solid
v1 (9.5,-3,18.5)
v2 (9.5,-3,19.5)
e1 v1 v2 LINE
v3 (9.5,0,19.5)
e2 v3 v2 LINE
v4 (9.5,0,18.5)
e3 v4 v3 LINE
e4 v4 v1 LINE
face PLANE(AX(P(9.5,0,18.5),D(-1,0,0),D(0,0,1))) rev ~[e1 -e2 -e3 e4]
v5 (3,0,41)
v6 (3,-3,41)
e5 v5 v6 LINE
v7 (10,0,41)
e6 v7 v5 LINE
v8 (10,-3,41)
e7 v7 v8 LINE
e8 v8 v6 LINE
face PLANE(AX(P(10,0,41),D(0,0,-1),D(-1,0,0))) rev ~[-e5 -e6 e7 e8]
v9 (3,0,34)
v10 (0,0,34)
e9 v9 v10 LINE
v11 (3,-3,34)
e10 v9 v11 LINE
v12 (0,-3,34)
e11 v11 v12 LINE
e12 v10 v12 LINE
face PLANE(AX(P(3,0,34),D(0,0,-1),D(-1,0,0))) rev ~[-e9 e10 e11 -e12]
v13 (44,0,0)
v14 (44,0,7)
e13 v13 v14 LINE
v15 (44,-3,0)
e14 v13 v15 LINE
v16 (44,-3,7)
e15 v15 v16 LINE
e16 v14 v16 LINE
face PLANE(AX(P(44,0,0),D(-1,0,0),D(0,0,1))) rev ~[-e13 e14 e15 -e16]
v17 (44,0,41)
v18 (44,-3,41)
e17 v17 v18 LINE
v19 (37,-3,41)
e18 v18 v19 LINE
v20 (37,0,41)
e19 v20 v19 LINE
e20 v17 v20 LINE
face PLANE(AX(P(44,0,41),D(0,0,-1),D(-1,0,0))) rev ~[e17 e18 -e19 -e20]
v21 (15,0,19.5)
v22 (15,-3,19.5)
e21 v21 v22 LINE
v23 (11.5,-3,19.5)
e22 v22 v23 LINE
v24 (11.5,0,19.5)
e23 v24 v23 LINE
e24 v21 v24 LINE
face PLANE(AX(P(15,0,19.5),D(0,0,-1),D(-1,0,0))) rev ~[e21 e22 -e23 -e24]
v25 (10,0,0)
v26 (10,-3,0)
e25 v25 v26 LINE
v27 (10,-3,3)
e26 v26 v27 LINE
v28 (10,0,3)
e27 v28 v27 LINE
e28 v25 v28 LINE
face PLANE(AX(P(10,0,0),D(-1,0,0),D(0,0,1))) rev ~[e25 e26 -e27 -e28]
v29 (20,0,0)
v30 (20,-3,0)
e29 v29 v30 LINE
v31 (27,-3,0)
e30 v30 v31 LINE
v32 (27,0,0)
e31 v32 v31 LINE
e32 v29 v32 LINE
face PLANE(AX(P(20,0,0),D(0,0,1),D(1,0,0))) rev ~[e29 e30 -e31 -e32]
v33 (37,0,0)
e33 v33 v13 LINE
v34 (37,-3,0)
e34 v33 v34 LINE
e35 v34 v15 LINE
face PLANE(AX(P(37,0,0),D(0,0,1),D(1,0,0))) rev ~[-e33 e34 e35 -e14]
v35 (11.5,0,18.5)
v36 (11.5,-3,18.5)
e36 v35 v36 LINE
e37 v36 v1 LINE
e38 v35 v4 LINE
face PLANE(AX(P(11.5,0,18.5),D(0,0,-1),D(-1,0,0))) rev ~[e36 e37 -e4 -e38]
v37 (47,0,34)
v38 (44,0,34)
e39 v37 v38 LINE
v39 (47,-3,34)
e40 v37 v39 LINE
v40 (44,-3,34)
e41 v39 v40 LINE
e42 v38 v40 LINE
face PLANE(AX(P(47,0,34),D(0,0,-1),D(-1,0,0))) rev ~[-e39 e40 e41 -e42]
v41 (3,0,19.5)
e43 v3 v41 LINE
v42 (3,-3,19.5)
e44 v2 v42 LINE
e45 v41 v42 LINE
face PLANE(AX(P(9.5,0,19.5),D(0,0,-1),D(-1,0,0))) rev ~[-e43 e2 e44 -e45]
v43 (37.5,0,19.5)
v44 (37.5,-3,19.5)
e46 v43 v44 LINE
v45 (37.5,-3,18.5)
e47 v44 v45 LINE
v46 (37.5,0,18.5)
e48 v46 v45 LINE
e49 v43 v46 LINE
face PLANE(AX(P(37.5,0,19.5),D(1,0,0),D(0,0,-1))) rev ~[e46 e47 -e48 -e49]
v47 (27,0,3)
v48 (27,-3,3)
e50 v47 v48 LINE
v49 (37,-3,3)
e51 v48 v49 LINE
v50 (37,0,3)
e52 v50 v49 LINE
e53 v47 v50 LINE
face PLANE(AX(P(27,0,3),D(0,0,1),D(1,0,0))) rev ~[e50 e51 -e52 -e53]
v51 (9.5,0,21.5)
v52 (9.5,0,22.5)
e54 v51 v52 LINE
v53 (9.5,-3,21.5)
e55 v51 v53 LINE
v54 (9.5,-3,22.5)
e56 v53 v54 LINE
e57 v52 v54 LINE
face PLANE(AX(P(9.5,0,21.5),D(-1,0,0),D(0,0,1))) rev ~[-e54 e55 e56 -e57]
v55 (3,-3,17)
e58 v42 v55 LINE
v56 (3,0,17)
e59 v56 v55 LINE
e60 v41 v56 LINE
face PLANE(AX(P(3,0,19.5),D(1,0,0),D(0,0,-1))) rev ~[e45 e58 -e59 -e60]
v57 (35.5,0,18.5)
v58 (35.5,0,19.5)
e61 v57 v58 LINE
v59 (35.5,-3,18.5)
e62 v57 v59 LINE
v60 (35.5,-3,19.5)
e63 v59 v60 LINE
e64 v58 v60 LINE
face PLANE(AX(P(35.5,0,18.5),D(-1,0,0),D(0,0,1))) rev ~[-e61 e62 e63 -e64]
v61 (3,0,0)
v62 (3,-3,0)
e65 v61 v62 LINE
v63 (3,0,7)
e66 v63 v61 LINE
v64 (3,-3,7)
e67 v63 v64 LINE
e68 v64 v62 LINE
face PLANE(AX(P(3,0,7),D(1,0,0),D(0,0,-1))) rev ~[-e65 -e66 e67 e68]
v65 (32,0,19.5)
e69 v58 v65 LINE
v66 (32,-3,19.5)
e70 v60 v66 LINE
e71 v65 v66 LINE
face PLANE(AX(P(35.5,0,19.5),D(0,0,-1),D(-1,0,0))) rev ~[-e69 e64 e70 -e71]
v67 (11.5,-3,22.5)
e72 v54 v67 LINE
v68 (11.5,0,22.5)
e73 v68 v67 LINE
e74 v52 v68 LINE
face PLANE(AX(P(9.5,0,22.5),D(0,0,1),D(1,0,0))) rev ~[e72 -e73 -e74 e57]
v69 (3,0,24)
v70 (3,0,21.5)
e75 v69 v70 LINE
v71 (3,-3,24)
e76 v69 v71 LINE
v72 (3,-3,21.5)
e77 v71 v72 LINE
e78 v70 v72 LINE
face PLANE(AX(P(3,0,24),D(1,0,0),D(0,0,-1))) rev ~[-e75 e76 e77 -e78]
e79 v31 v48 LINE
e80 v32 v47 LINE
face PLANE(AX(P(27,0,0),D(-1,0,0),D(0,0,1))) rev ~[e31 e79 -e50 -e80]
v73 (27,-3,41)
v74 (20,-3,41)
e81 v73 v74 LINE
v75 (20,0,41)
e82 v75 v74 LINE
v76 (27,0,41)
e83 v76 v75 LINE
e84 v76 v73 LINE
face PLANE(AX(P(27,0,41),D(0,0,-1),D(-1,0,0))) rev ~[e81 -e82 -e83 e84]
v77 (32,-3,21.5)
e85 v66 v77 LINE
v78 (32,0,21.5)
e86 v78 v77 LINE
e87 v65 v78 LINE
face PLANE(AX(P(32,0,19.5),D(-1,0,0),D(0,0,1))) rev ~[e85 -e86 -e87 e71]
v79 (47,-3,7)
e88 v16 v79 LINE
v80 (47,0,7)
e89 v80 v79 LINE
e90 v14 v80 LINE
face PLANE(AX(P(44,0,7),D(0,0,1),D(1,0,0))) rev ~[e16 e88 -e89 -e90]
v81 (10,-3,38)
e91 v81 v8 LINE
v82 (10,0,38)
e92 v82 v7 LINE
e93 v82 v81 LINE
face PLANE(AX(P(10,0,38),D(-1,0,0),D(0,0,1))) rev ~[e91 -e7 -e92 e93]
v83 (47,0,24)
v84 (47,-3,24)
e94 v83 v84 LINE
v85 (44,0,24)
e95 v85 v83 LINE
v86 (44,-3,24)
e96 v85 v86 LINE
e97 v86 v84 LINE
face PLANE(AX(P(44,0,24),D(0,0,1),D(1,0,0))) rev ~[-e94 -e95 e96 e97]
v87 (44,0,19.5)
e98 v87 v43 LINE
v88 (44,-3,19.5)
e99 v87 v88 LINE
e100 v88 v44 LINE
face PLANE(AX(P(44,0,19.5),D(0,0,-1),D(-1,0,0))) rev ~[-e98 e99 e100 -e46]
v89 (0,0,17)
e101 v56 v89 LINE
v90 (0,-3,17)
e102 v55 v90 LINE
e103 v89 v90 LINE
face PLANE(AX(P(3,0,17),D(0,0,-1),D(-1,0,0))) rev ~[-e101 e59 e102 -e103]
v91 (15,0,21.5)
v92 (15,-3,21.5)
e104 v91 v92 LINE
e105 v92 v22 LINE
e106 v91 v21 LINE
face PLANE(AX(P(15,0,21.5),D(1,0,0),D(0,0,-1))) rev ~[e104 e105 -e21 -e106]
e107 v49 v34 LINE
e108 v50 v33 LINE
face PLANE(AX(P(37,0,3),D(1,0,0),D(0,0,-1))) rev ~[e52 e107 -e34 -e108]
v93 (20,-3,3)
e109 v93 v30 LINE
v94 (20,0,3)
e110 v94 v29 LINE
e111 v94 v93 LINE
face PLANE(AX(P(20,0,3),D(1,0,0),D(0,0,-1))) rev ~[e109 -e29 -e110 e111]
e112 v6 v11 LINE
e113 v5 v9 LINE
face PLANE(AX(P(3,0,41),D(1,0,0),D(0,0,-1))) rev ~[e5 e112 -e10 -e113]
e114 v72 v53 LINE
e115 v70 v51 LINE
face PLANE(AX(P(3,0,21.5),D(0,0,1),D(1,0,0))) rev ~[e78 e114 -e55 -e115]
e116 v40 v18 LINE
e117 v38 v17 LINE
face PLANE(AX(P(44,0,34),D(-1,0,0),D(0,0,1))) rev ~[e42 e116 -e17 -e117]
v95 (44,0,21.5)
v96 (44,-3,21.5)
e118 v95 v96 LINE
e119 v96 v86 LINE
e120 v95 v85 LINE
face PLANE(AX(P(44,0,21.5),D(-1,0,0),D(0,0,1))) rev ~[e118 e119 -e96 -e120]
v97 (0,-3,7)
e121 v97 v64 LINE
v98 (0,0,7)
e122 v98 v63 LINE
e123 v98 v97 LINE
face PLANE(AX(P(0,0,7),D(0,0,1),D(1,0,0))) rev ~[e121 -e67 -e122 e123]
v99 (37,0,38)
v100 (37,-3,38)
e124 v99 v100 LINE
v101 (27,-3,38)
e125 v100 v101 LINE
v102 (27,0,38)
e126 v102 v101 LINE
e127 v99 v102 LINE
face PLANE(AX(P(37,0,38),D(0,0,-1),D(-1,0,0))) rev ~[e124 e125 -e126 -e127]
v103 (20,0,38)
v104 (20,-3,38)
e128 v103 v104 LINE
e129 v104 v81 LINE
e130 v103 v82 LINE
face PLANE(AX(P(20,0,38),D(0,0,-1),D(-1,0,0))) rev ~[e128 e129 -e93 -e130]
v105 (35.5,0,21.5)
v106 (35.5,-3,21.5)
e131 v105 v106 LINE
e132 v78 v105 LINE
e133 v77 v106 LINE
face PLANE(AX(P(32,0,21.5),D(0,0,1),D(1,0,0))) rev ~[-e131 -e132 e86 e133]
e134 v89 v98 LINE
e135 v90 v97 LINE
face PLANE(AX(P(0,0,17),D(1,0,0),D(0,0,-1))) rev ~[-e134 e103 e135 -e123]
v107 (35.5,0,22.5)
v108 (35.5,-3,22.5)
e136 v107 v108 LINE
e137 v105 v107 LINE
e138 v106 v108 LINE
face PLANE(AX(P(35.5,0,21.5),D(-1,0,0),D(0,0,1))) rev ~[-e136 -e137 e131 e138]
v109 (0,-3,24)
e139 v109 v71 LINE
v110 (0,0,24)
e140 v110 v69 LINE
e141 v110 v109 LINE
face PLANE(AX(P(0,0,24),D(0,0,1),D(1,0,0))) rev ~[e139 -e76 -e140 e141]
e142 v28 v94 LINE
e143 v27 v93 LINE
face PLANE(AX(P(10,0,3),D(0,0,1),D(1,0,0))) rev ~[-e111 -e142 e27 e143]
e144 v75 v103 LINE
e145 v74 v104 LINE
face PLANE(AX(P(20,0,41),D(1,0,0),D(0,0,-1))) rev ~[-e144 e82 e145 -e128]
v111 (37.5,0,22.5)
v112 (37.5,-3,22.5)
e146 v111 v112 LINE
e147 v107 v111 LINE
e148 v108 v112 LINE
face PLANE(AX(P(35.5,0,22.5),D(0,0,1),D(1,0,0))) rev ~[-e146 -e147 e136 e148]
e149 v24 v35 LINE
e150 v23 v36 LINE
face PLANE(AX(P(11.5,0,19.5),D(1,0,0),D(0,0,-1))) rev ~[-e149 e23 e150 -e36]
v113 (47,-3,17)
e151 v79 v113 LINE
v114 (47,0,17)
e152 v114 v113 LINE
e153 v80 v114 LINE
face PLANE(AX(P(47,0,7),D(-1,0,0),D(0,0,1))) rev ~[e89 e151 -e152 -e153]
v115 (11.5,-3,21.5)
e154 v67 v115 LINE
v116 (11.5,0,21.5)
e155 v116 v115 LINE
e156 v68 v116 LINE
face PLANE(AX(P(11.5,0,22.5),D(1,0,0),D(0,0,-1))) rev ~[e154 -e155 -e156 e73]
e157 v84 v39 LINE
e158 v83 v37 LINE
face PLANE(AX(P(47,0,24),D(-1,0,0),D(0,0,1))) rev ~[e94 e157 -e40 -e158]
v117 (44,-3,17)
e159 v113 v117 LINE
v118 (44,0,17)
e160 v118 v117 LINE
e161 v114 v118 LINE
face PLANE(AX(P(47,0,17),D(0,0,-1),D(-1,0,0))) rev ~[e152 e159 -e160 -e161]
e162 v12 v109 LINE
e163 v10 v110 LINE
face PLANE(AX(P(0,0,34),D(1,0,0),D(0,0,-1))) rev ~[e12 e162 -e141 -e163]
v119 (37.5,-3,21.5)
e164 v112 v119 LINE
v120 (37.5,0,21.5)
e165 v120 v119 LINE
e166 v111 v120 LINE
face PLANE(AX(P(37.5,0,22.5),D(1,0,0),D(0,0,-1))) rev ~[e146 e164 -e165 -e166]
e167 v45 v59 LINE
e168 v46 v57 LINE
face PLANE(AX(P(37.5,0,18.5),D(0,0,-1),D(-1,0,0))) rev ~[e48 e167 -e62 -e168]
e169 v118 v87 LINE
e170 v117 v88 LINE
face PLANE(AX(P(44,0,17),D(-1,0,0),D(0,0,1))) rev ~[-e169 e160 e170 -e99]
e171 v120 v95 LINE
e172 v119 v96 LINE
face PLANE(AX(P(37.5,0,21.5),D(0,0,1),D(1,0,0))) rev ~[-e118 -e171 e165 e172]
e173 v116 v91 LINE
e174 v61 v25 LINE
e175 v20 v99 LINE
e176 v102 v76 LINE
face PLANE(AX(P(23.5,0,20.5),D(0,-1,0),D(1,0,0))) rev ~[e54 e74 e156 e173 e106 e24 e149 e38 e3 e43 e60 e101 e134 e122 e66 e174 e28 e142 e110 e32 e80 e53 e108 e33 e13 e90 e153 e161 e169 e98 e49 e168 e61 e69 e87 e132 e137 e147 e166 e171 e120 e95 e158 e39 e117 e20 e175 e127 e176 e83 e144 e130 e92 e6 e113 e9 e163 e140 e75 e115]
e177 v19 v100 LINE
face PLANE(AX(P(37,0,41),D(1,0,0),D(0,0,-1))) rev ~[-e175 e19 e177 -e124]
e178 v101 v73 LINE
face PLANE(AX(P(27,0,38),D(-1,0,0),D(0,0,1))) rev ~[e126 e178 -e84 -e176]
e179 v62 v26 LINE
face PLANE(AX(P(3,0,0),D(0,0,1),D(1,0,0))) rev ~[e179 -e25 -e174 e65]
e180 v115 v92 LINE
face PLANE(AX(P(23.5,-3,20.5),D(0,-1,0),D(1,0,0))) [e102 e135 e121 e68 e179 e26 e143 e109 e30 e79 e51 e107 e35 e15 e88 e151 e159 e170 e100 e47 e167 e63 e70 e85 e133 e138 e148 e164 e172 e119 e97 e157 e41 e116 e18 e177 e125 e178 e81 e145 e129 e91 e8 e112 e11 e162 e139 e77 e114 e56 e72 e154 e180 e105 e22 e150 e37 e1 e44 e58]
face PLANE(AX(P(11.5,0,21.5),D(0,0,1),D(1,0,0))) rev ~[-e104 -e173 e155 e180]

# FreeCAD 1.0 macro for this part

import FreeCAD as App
import Part
import Sketcher

V = App.Vector


def add_polygon(sketch, points):
    """Adds a closed chain of lines whose ends are joined by coincident constraints."""
    first, n = sketch.GeometryCount, len(points)
    for a, b in zip(points, points[1:] + points[:1]):
        sketch.addGeometry(Part.LineSegment(App.Vector(*a, 0), App.Vector(*b, 0)), False)
    for i in range(n):
        sketch.addConstraint(Sketcher.Constraint("Coincident", first + i, 2, first + (i + 1) % n, 1))

doc = App.newDocument("Part")
body = doc.addObject("PartDesign::Body", "Body")

# Sketch on XZ plane
sketch1 = doc.addObject("Sketcher::SketchObject", "Sketch")
body.addObject(sketch1)
sketch1.AttachmentSupport = (doc.XZ_Plane, [""])
sketch1.MapMode = "FlatFace"
add_polygon(sketch1, [(3, 7), (3, 0), (10, 0), (10, 3), (20, 3), (20, 0), (27, 0), (27, 3), (37, 3), (37, 0), (44, 0), (44, 7), (47, 7), (47, 17), (44, 17), (44, 19.5), (37.5, 19.5), (37.5, 18.5), (35.5, 18.5), (35.5, 19.5), (32, 19.5), (32, 21.5), (35.5, 21.5), (35.5, 22.5), (37.5, 22.5), (37.5, 21.5), (44, 21.5), (44, 24), (47, 24), (47, 34), (44, 34), (44, 41), (37, 41), (37, 38), (27, 38), (27, 41), (20, 41), (20, 38), (10, 38), (10, 41), (3, 41), (3, 34), (0, 34), (0, 24), (3, 24), (3, 21.5), (9.5, 21.5), (9.5, 22.5), (11.5, 22.5), (11.5, 21.5), (15, 21.5), (15, 19.5), (11.5, 19.5), (11.5, 18.5), (9.5, 18.5), (9.5, 19.5), (3, 19.5), (3, 17), (0, 17), (0, 7)])  # lines 0-59
sketch1.addConstraint(Sketcher.Constraint("Vertical", 0))
sketch1.addConstraint(Sketcher.Constraint("Horizontal", 1))
sketch1.addConstraint(Sketcher.Constraint("Vertical", 2))
sketch1.addConstraint(Sketcher.Constraint("Horizontal", 3))
sketch1.addConstraint(Sketcher.Constraint("Vertical", 4))
sketch1.addConstraint(Sketcher.Constraint("Horizontal", 5))
sketch1.addConstraint(Sketcher.Constraint("Vertical", 6))
sketch1.addConstraint(Sketcher.Constraint("Horizontal", 7))
sketch1.addConstraint(Sketcher.Constraint("Vertical", 8))
sketch1.addConstraint(Sketcher.Constraint("Horizontal", 9))
sketch1.addConstraint(Sketcher.Constraint("Vertical", 10))
sketch1.addConstraint(Sketcher.Constraint("Horizontal", 11))
sketch1.addConstraint(Sketcher.Constraint("Vertical", 12))
sketch1.addConstraint(Sketcher.Constraint("Horizontal", 13))
sketch1.addConstraint(Sketcher.Constraint("Vertical", 14))
sketch1.addConstraint(Sketcher.Constraint("Horizontal", 15))
sketch1.addConstraint(Sketcher.Constraint("Vertical", 16))
sketch1.addConstraint(Sketcher.Constraint("Horizontal", 17))
sketch1.addConstraint(Sketcher.Constraint("Vertical", 18))
sketch1.addConstraint(Sketcher.Constraint("Horizontal", 19))
sketch1.addConstraint(Sketcher.Constraint("Vertical", 20))
sketch1.addConstraint(Sketcher.Constraint("Horizontal", 21))
sketch1.addConstraint(Sketcher.Constraint("Vertical", 22))
sketch1.addConstraint(Sketcher.Constraint("Horizontal", 23))
sketch1.addConstraint(Sketcher.Constraint("Vertical", 24))
sketch1.addConstraint(Sketcher.Constraint("Horizontal", 25))
sketch1.addConstraint(Sketcher.Constraint("Vertical", 26))
sketch1.addConstraint(Sketcher.Constraint("Horizontal", 27))
sketch1.addConstraint(Sketcher.Constraint("Vertical", 28))
sketch1.addConstraint(Sketcher.Constraint("Horizontal", 29))
sketch1.addConstraint(Sketcher.Constraint("Vertical", 30))
sketch1.addConstraint(Sketcher.Constraint("Horizontal", 31))
sketch1.addConstraint(Sketcher.Constraint("Vertical", 32))
sketch1.addConstraint(Sketcher.Constraint("Horizontal", 33))
sketch1.addConstraint(Sketcher.Constraint("Vertical", 34))
sketch1.addConstraint(Sketcher.Constraint("Horizontal", 35))
sketch1.addConstraint(Sketcher.Constraint("Vertical", 36))
sketch1.addConstraint(Sketcher.Constraint("Horizontal", 37))
sketch1.addConstraint(Sketcher.Constraint("Vertical", 38))
sketch1.addConstraint(Sketcher.Constraint("Horizontal", 39))
sketch1.addConstraint(Sketcher.Constraint("Vertical", 40))
sketch1.addConstraint(Sketcher.Constraint("Horizontal", 41))
sketch1.addConstraint(Sketcher.Constraint("Vertical", 42))
sketch1.addConstraint(Sketcher.Constraint("Horizontal", 43))
sketch1.addConstraint(Sketcher.Constraint("Vertical", 44))
sketch1.addConstraint(Sketcher.Constraint("Horizontal", 45))
sketch1.addConstraint(Sketcher.Constraint("Vertical", 46))
sketch1.addConstraint(Sketcher.Constraint("Horizontal", 47))
sketch1.addConstraint(Sketcher.Constraint("Vertical", 48))
sketch1.addConstraint(Sketcher.Constraint("Horizontal", 49))
sketch1.addConstraint(Sketcher.Constraint("Vertical", 50))
sketch1.addConstraint(Sketcher.Constraint("Horizontal", 51))
sketch1.addConstraint(Sketcher.Constraint("Vertical", 52))
sketch1.addConstraint(Sketcher.Constraint("Horizontal", 53))
sketch1.addConstraint(Sketcher.Constraint("Vertical", 54))
sketch1.addConstraint(Sketcher.Constraint("Horizontal", 55))
sketch1.addConstraint(Sketcher.Constraint("Vertical", 56))
sketch1.addConstraint(Sketcher.Constraint("Horizontal", 57))
sketch1.addConstraint(Sketcher.Constraint("Vertical", 58))
sketch1.addConstraint(Sketcher.Constraint("Horizontal", 59))
sketch1.addConstraint(Sketcher.Constraint("PointOnObject", 0, 2, -1))
sketch1.addConstraint(Sketcher.Constraint("PointOnObject", 4, 2, -1))
sketch1.addConstraint(Sketcher.Constraint("PointOnObject", 8, 2, -1))
sketch1.addConstraint(Sketcher.Constraint("PointOnObject", 41, 2, -2))
sketch1.addConstraint(Sketcher.Constraint("PointOnObject", 57, 2, -2))
sketch1.addConstraint(Sketcher.Constraint("Horizontal", 3, 2, 6, 2))
sketch1.addConstraint(Sketcher.Constraint("Horizontal", 15, 2, 18, 2))
sketch1.addConstraint(Sketcher.Constraint("Horizontal", 21, 2, 24, 2))
sketch1.addConstraint(Sketcher.Constraint("Horizontal", 31, 2, 34, 2))
sketch1.addConstraint(Sketcher.Constraint("Horizontal", 33, 2, 36, 2))
sketch1.addConstraint(Sketcher.Constraint("Horizontal", 35, 2, 38, 2))
sketch1.addConstraint(Sketcher.Constraint("Horizontal", 29, 2, 40, 2))
sketch1.addConstraint(Sketcher.Constraint("Horizontal", 27, 2, 42, 2))
sketch1.addConstraint(Sketcher.Constraint("Horizontal", 25, 2, 44, 2))
sketch1.addConstraint(Sketcher.Constraint("Horizontal", 23, 2, 46, 2))
sketch1.addConstraint(Sketcher.Constraint("Horizontal", 45, 2, 48, 2))
sketch1.addConstraint(Sketcher.Constraint("Horizontal", 19, 2, 50, 2))
sketch1.addConstraint(Sketcher.Constraint("Horizontal", 17, 2, 52, 2))
sketch1.addConstraint(Sketcher.Constraint("Horizontal", 51, 2, 54, 2))
sketch1.addConstraint(Sketcher.Constraint("Horizontal", 13, 2, 56, 2))
sketch1.addConstraint(Sketcher.Constraint("Horizontal", 11, 2, 58, 2))
sketch1.addConstraint(Sketcher.Constraint("Vertical", 10, 2, 13, 2))
sketch1.addConstraint(Sketcher.Constraint("Vertical", 18, 2, 21, 2))
sketch1.addConstraint(Sketcher.Constraint("Vertical", 16, 2, 23, 2))
sketch1.addConstraint(Sketcher.Constraint("Vertical", 14, 2, 25, 2))
sketch1.addConstraint(Sketcher.Constraint("Vertical", 12, 2, 27, 2))
sketch1.addConstraint(Sketcher.Constraint("Vertical", 26, 2, 29, 2))
sketch1.addConstraint(Sketcher.Constraint("Vertical", 8, 2, 31, 2))
sketch1.addConstraint(Sketcher.Constraint("Vertical", 6, 2, 33, 2))
sketch1.addConstraint(Sketcher.Constraint("Vertical", 4, 2, 35, 2))
sketch1.addConstraint(Sketcher.Constraint("Vertical", 2, 2, 37, 2))
sketch1.addConstraint(Sketcher.Constraint("Vertical", 0, 2, 39, 2))
sketch1.addConstraint(Sketcher.Constraint("Vertical", 40, 2, 43, 2))
sketch1.addConstraint(Sketcher.Constraint("Vertical", 48, 2, 51, 2))
sketch1.addConstraint(Sketcher.Constraint("Vertical", 46, 2, 53, 2))
sketch1.addConstraint(Sketcher.Constraint("Vertical", 44, 2, 55, 2))
sketch1.addConstraint(Sketcher.Constraint("Equal", 1, 5))
sketch1.addConstraint(Sketcher.Constraint("Equal", 3, 7))
sketch1.addConstraint(Sketcher.Constraint("Equal", 5, 9))
sketch1.addConstraint(Sketcher.Constraint("Equal", 29, 41))
sketch1.addConstraint(Sketcher.Constraint("Equal", 25, 45))
sketch1.addConstraint(Sketcher.Constraint("Equal", 23, 47))
sketch1.addConstraint(Sketcher.Constraint("Equal", 21, 49))
sketch1.addConstraint(Sketcher.Constraint("Equal", 39, 0))
sketch1.addConstraint(Sketcher.Constraint("Equal", 59, 2))
sketch1.addConstraint(Sketcher.Constraint("Equal", 37, 12))
sketch1.addConstraint(Sketcher.Constraint("Equal", 53, 20))
sketch1.addConstraint(Sketcher.Constraint("Equal", 18, 22))
sketch1.addConstraint(Sketcher.Constraint("Equal", 14, 26))
sketch1.addConstraint(Sketcher.Constraint("Equal", 12, 28))
sketch1.addConstraint(Sketcher.Constraint("Equal", 10, 30))
sketch1.addConstraint(Sketcher.Constraint("Equal", 8, 32))
sketch1.addConstraint(Sketcher.Constraint("DistanceX", 1, 1, 1, 2, 7.0))
sketch1.addConstraint(Sketcher.Constraint("DistanceX", 3, 1, 3, 2, 10.0))
sketch1.addConstraint(Sketcher.Constraint("DistanceX", 11, 1, 11, 2, 3.0))
sketch1.addConstraint(Sketcher.Constraint("DistanceX", 17, 2, 17, 1, 2.0))
sketch1.addConstraint(Sketcher.Constraint("DistanceY", 16, 2, 16, 1, 1.0))
sketch1.addConstraint(Sketcher.Constraint("DistanceX", 15, 2, 15, 1, 6.5))
sketch1.addConstraint(Sketcher.Constraint("DistanceX", 19, 2, 19, 1, 3.5))
sketch1.addConstraint(Sketcher.Constraint("DistanceY", 14, 1, 14, 2, 2.5))
pad1 = doc.addObject("PartDesign::Pad", "Pad")
body.addObject(pad1)
pad1.Profile = sketch1
pad1.Length = 3

doc.recompute()
